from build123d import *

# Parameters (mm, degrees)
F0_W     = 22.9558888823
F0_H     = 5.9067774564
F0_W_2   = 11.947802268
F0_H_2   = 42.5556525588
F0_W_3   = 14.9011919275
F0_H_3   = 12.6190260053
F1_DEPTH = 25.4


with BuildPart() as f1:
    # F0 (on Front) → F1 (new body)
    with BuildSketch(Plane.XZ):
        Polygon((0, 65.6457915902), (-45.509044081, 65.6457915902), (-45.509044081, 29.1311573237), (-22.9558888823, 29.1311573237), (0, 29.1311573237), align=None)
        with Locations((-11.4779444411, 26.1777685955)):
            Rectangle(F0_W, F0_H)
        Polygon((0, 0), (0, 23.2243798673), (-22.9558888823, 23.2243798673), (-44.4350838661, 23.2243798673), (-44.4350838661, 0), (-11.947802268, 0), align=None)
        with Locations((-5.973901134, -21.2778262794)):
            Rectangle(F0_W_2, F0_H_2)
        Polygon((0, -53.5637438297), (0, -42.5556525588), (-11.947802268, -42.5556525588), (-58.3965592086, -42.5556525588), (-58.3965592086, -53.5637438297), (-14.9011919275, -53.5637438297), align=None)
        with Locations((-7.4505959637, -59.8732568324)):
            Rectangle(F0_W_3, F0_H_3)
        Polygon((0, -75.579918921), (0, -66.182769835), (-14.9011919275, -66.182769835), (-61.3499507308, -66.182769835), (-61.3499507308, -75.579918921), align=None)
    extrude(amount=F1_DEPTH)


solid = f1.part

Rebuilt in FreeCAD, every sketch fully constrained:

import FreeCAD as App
import Part
import Sketcher

V = App.Vector


def add_polygon(sketch, points):
    """Adds a closed chain of lines whose ends are joined by coincident constraints."""
    first, n = sketch.GeometryCount, len(points)
    for a, b in zip(points, points[1:] + points[:1]):
        sketch.addGeometry(Part.LineSegment(App.Vector(*a, 0), App.Vector(*b, 0)), False)
    for i in range(n):
        sketch.addConstraint(Sketcher.Constraint("Coincident", first + i, 2, first + (i + 1) % n, 1))

doc = App.newDocument("Part")
params = doc.addObject("Spreadsheet::Sheet", "Params")
for row, (alias, value) in enumerate([
    ("pad1_length", "1 in"),
], start=1):
    params.set(f"A{row}", alias)
    params.set(f"B{row}", "=" + value)
    params.setAlias(f"B{row}", alias)

body = doc.addObject("PartDesign::Body", "Body")

# Sketch on XZ plane
sketch1 = body.newObject("Sketcher::SketchObject", "Sketch")
sketch1.AttachmentSupport = (doc.getObject("XZ_Plane"), [""])
sketch1.MapMode = "FlatFace"
add_polygon(sketch1, [(0, 66), (-46, 66), (-46, 29), (-23, 29), (-23, 23), (-44, 23), (-44, 0), (-12, 0), (-12, -43), (-58, -43), (-58, -54), (-15, -54), (-15, -66), (-61, -66), (-61, -76), (0, -76)])  # lines 0-15
sketch1.addConstraint(Sketcher.Constraint("Horizontal", 0))
sketch1.addConstraint(Sketcher.Constraint("Vertical", 1))
sketch1.addConstraint(Sketcher.Constraint("Horizontal", 2))
sketch1.addConstraint(Sketcher.Constraint("Vertical", 3))
sketch1.addConstraint(Sketcher.Constraint("Horizontal", 4))
sketch1.addConstraint(Sketcher.Constraint("Vertical", 5))
sketch1.addConstraint(Sketcher.Constraint("Horizontal", 6))
sketch1.addConstraint(Sketcher.Constraint("Vertical", 7))
sketch1.addConstraint(Sketcher.Constraint("Horizontal", 8))
sketch1.addConstraint(Sketcher.Constraint("Vertical", 9))
sketch1.addConstraint(Sketcher.Constraint("Horizontal", 10))
sketch1.addConstraint(Sketcher.Constraint("Vertical", 11))
sketch1.addConstraint(Sketcher.Constraint("Horizontal", 12))
sketch1.addConstraint(Sketcher.Constraint("Vertical", 13))
sketch1.addConstraint(Sketcher.Constraint("Horizontal", 14))
sketch1.addConstraint(Sketcher.Constraint("Vertical", 15))
sketch1.addConstraint(Sketcher.Constraint("PointOnObject", 5, 2, -1))
sketch1.addConstraint(Sketcher.Constraint("PointOnObject", 14, 2, -2))
sketch1.addConstraint(Sketcher.Constraint("Equal", 8, 12))
sketch1.addConstraint(Sketcher.Constraint("DistanceX", 6, 1, 6, 2, 32.487282))
sketch1.addConstraint(Sketcher.Constraint("DistanceX", 12, 2, 12, 1, 46.448759))
sketch1.addConstraint(Sketcher.Constraint("DistanceX", 14, 1, 14, 2, 61.349951))
sketch1.addConstraint(Sketcher.Constraint("DistanceY", 5, 2, 5, 1, 23.22438))
sketch1.addConstraint(Sketcher.Constraint("DistanceY", 9, 2, 9, 1, 11.008091))
sketch1.addConstraint(Sketcher.Constraint("DistanceY", 13, 2, 13, 1, 9.397149))
sketch1.addConstraint(Sketcher.Constraint("DistanceY", 15, 1, 15, 2, 141.225711))
sketch1.addConstraint(Sketcher.Constraint("DistanceX", 0, 2, 0, 1, 45.509044))
sketch1.addConstraint(Sketcher.Constraint("DistanceX", 2, 1, 2, 2, 22.553155))
sketch1.addConstraint(Sketcher.Constraint("DistanceX", 4, 2, 4, 1, 21.479195))
sketch1.addConstraint(Sketcher.Constraint("DistanceY", 1, 2, 1, 1, 36.514634))
sketch1.addConstraint(Sketcher.Constraint("DistanceY", 3, 2, 3, 1, 5.906777))
sketch1.addConstraint(Sketcher.Constraint("DistanceY", 7, 2, 7, 1, 42.555653))
pad1 = body.newObject("PartDesign::Pad", "Pad")
pad1.Profile = sketch1
pad1.setExpression("Length", "Params.pad1_length")

doc.recompute()
